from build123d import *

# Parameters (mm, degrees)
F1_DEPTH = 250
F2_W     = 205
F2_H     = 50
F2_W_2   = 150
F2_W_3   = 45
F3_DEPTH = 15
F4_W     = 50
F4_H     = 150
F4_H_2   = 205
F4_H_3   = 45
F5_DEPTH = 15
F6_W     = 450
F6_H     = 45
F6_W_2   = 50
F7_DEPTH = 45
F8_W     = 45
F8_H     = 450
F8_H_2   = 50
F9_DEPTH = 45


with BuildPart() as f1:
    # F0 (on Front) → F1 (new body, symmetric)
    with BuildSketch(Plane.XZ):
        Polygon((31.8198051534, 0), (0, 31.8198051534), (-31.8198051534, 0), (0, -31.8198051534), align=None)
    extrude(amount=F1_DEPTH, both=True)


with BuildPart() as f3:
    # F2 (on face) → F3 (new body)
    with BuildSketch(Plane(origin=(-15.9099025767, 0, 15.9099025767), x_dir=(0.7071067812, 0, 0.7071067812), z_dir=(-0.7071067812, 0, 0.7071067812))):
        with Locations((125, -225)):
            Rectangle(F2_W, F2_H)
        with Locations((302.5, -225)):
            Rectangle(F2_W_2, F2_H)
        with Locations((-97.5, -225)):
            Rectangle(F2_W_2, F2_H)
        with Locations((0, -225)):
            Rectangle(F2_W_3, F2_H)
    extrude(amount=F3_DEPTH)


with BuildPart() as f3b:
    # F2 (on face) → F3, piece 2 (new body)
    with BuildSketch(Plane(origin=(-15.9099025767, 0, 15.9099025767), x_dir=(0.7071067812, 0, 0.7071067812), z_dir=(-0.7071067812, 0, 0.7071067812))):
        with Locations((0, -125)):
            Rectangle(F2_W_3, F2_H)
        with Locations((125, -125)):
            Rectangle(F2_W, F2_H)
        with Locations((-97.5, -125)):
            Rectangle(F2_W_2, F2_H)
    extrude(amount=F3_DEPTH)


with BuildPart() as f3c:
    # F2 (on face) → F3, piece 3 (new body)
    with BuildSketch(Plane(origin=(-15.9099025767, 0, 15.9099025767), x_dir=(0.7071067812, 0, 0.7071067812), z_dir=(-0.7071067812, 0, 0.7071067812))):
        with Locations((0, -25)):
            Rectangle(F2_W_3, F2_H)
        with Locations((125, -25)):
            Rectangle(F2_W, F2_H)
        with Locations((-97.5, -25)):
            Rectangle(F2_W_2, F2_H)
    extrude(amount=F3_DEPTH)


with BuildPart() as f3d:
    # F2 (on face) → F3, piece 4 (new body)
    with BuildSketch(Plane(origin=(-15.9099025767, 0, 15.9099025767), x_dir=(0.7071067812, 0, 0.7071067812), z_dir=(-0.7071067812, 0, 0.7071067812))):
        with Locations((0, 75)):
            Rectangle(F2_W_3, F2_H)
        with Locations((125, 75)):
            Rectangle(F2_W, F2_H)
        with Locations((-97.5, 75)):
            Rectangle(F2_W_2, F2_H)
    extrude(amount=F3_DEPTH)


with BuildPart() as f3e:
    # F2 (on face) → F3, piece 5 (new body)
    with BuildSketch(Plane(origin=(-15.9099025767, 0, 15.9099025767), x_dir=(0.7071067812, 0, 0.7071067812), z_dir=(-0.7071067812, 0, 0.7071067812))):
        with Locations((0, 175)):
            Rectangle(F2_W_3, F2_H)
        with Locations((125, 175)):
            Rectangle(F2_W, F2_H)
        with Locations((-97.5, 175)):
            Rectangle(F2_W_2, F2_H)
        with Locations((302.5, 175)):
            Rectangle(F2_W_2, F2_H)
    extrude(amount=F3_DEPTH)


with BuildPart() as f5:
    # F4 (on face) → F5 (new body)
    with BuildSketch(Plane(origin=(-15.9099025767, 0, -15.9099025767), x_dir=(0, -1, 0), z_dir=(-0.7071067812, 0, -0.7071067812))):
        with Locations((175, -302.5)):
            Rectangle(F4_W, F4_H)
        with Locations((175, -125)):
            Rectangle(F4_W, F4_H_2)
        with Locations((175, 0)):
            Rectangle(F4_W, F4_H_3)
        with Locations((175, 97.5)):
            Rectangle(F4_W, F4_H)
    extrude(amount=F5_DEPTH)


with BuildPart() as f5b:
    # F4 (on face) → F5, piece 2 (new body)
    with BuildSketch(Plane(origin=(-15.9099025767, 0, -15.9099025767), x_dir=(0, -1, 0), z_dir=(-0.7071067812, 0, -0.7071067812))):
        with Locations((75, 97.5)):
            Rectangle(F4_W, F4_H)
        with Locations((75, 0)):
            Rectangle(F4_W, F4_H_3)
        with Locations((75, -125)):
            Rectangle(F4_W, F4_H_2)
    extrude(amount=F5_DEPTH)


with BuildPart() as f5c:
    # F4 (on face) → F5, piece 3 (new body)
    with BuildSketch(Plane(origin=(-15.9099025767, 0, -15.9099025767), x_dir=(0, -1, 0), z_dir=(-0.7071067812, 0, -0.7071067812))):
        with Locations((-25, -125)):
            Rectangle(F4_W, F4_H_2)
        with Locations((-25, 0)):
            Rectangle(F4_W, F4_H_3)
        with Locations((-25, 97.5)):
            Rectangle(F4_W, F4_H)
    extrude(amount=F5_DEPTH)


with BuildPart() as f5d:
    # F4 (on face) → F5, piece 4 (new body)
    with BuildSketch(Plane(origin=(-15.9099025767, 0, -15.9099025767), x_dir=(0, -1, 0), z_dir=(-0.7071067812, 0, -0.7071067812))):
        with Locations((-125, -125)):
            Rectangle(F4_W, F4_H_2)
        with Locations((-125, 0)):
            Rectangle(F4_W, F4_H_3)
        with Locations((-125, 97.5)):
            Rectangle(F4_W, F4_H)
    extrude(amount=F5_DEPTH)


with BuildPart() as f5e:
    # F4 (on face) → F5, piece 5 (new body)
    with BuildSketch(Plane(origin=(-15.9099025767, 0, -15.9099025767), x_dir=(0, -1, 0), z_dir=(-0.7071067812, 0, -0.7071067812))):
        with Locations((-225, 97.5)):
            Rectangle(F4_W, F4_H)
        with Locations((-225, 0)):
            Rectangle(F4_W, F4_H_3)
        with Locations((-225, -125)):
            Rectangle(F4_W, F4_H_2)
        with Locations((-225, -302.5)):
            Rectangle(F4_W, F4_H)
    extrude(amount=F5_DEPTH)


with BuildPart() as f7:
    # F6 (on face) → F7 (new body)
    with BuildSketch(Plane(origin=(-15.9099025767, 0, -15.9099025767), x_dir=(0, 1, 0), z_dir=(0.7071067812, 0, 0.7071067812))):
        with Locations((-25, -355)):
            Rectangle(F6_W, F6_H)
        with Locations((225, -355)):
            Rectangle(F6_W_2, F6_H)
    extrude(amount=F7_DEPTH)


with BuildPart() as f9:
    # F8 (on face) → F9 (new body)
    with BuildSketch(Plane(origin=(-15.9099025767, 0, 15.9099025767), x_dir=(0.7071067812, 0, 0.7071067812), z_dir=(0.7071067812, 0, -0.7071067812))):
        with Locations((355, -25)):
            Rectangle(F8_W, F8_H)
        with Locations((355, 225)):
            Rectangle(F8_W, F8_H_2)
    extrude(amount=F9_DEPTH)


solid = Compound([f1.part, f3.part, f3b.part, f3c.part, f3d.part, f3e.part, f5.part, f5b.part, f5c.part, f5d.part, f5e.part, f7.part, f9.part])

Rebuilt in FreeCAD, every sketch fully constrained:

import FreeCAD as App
import Part
import Sketcher
from FreeCAD import Vector
Q = App.Units.Quantity


def add_polygon(sketch, points):
    """Adds a closed chain of lines whose ends are joined by coincident constraints."""
    first, n = sketch.GeometryCount, len(points)
    for a, b in zip(points, points[1:] + points[:1]):
        sketch.addGeometry(Part.LineSegment(App.Vector(*a, 0), App.Vector(*b, 0)), False)
    for i in range(n):
        sketch.addConstraint(Sketcher.Constraint("Coincident", first + i, 2, first + (i + 1) % n, 1))

doc = App.newDocument("Part")
params = doc.addObject("Spreadsheet::Sheet", "Params")
for row, (alias, value) in enumerate([
    ("sketch1_length", "45 mm"),
    ("pad1_length", "500 mm"),
    ("sketch2_width", "550 mm"),
    ("sketch2_height", "50 mm"),
    ("pad2_length", "15 mm"),
    ("sketch3_width", "400 mm"),
    ("sketch3_height", "50 mm"),
    ("pad3_length", "15 mm"),
    ("sketch4_width", "400 mm"),
    ("sketch4_height", "50 mm"),
    ("pad4_length", "15 mm"),
    ("sketch5_width", "400 mm"),
    ("sketch5_height", "50 mm"),
    ("pad5_length", "15 mm"),
    ("sketch6_width", "550 mm"),
    ("sketch6_height", "50 mm"),
    ("pad6_length", "15 mm"),
    ("sketch7_width", "50 mm"),
    ("sketch7_height", "550 mm"),
    ("pad7_length", "15 mm"),
    ("sketch8_width", "50 mm"),
    ("sketch8_height", "400 mm"),
    ("pad8_length", "15 mm"),
    ("sketch9_width", "50 mm"),
    ("sketch9_height", "400 mm"),
    ("pad9_length", "15 mm"),
    ("sketch10_width", "50 mm"),
    ("sketch10_height", "400 mm"),
    ("pad10_length", "15 mm"),
    ("sketch11_width", "50 mm"),
    ("sketch11_height", "550 mm"),
    ("pad11_length", "15 mm"),
    ("sketch12_width", "500 mm"),
    ("sketch12_height", "45 mm"),
    ("pad12_length", "45 mm"),
    ("sketch13_width", "45 mm"),
    ("sketch13_height", "499.999999 mm"),
    ("pad13_length", "45 mm"),
], start=1):
    params.set(f"A{row}", alias)
    params.set(f"B{row}", "=" + value)
    params.setAlias(f"B{row}", alias)

body = doc.addObject("PartDesign::Body", "Body")

sketch1 = doc.addObject("Sketcher::SketchObject", "Sketch")
body.addObject(sketch1)
sketch1.AttachmentSupport = (doc.XZ_Plane, [""])
sketch1.MapMode = "FlatFace"
add_polygon(sketch1, [(32, 0), (0, 32), (-32, 0), (0, -32)])
sketch1.addConstraint(Sketcher.Constraint("Symmetric", 0, 2, 2, 2, -1, 1))
sketch1.addConstraint(Sketcher.Constraint("Symmetric", 1, 2, 3, 2, -1, 1))
sketch1.addConstraint(Sketcher.Constraint("PointOnObject", 0, 2, -2))
sketch1.addConstraint(Sketcher.Constraint("PointOnObject", 1, 2, -1))
sketch1.addConstraint(Sketcher.Constraint("Perpendicular", 0, 1))
sketch1.addConstraint(Sketcher.Constraint("Distance", 0, Q("45 mm")))
sketch1.setExpression("Constraints[9]", "Params.sketch1_length")
pad1 = doc.addObject("PartDesign::Pad", "Pad")
body.addObject(pad1)
pad1.Profile = sketch1
pad1.setExpression("Length", "Params.pad1_length")
pad1.Midplane = True
body2 = doc.addObject("PartDesign::Body", "Body001")

sketch2 = doc.addObject("Sketcher::SketchObject", "Sketch001")
body2.addObject(sketch2)
sketch2.Placement = App.Placement(Vector(-15.909903, 0, 15.909903), App.Rotation(Vector(0.707106781, 0, 0.707106781), Vector(0, 0.999999999, 0), Vector(-0.707106781, 0, 0.707106781), "ZXY"))
add_polygon(sketch2, [(377, -250), (377, -200), (-172, -200), (-172, -250)])
sketch2.addConstraint(Sketcher.Constraint("Vertical", 0))
sketch2.addConstraint(Sketcher.Constraint("Horizontal", 1))
sketch2.addConstraint(Sketcher.Constraint("Vertical", 2))
sketch2.addConstraint(Sketcher.Constraint("Horizontal", 3))
sketch2.addConstraint(Sketcher.Constraint("DistanceX", 1, 2, 1, 1, Q("550 mm")))
sketch2.addConstraint(Sketcher.Constraint("DistanceY", 0, 1, 0, 2, Q("50 mm")))
sketch2.addConstraint(Sketcher.Constraint("DistanceY", 0, 2, -1, 1, Q("200 mm")))
sketch2.addConstraint(Sketcher.Constraint("DistanceX", -1, 1, 0, 2, Q("377.5 mm")))
sketch2.setExpression("Constraints[8]", "Params.sketch2_width")
sketch2.setExpression("Constraints[9]", "Params.sketch2_height")
pad2 = doc.addObject("PartDesign::Pad", "Pad001")
body2.addObject(pad2)
pad2.Profile = sketch2
pad2.setExpression("Length", "Params.pad2_length")
body3 = doc.addObject("PartDesign::Body", "Body002")

sketch3 = doc.addObject("Sketcher::SketchObject", "Sketch002")
body3.addObject(sketch3)
sketch3.Placement = App.Placement(Vector(-15.909903, 0, 15.909903), App.Rotation(Vector(0.707106781, 0, 0.707106781), Vector(0, 0.999999999, 0), Vector(-0.707106781, 0, 0.707106781), "ZXY"))
add_polygon(sketch3, [(227, -150), (227, -100), (-172, -100), (-172, -150)])
sketch3.addConstraint(Sketcher.Constraint("Vertical", 0))
sketch3.addConstraint(Sketcher.Constraint("Horizontal", 1))
sketch3.addConstraint(Sketcher.Constraint("Vertical", 2))
sketch3.addConstraint(Sketcher.Constraint("Horizontal", 3))
sketch3.addConstraint(Sketcher.Constraint("DistanceX", 1, 2, 1, 1, Q("400 mm")))
sketch3.addConstraint(Sketcher.Constraint("DistanceY", 0, 1, 0, 2, Q("50 mm")))
sketch3.addConstraint(Sketcher.Constraint("DistanceY", 0, 2, -1, 1, Q("100 mm")))
sketch3.addConstraint(Sketcher.Constraint("DistanceX", -1, 1, 0, 2, Q("227.5 mm")))
sketch3.setExpression("Constraints[8]", "Params.sketch3_width")
sketch3.setExpression("Constraints[9]", "Params.sketch3_height")
pad3 = doc.addObject("PartDesign::Pad", "Pad002")
body3.addObject(pad3)
pad3.Profile = sketch3
pad3.setExpression("Length", "Params.pad3_length")
body4 = doc.addObject("PartDesign::Body", "Body003")

sketch4 = doc.addObject("Sketcher::SketchObject", "Sketch003")
body4.addObject(sketch4)
sketch4.Placement = App.Placement(Vector(-15.909903, 0, 15.909903), App.Rotation(Vector(0.707106781, 0, 0.707106781), Vector(0, 0.999999999, 0), Vector(-0.707106781, 0, 0.707106781), "ZXY"))
add_polygon(sketch4, [(227, -50), (227, 0), (-172, 0), (-172, -50)])
sketch4.addConstraint(Sketcher.Constraint("Vertical", 0))
sketch4.addConstraint(Sketcher.Constraint("Horizontal", 1))
sketch4.addConstraint(Sketcher.Constraint("Vertical", 2))
sketch4.addConstraint(Sketcher.Constraint("Horizontal", 3))
sketch4.addConstraint(Sketcher.Constraint("PointOnObject", 0, 2, -1))
sketch4.addConstraint(Sketcher.Constraint("DistanceX", 1, 2, 1, 1, Q("400 mm")))
sketch4.addConstraint(Sketcher.Constraint("DistanceY", 0, 1, 0, 2, Q("50 mm")))
sketch4.addConstraint(Sketcher.Constraint("DistanceX", -1, 1, 0, 2, Q("227.5 mm")))
sketch4.setExpression("Constraints[9]", "Params.sketch4_width")
sketch4.setExpression("Constraints[10]", "Params.sketch4_height")
pad4 = doc.addObject("PartDesign::Pad", "Pad003")
body4.addObject(pad4)
pad4.Profile = sketch4
pad4.setExpression("Length", "Params.pad4_length")
body5 = doc.addObject("PartDesign::Body", "Body004")

sketch5 = doc.addObject("Sketcher::SketchObject", "Sketch004")
body5.addObject(sketch5)
sketch5.Placement = App.Placement(Vector(-15.909903, 0, 15.909903), App.Rotation(Vector(0.707106781, 0, 0.707106781), Vector(0, 0.999999999, 0), Vector(-0.707106781, 0, 0.707106781), "ZXY"))
add_polygon(sketch5, [(227, 50), (227, 100), (-172, 100), (-172, 50)])
sketch5.addConstraint(Sketcher.Constraint("Vertical", 0))
sketch5.addConstraint(Sketcher.Constraint("Horizontal", 1))
sketch5.addConstraint(Sketcher.Constraint("Vertical", 2))
sketch5.addConstraint(Sketcher.Constraint("Horizontal", 3))
sketch5.addConstraint(Sketcher.Constraint("DistanceX", 1, 2, 1, 1, Q("400 mm")))
sketch5.addConstraint(Sketcher.Constraint("DistanceY", 0, 1, 0, 2, Q("50 mm")))
sketch5.addConstraint(Sketcher.Constraint("DistanceY", -1, 1, 0, 2, Q("100 mm")))
sketch5.addConstraint(Sketcher.Constraint("DistanceX", -1, 1, 0, 2, Q("227.5 mm")))
sketch5.setExpression("Constraints[8]", "Params.sketch5_width")
sketch5.setExpression("Constraints[9]", "Params.sketch5_height")
pad5 = doc.addObject("PartDesign::Pad", "Pad004")
body5.addObject(pad5)
pad5.Profile = sketch5
pad5.setExpression("Length", "Params.pad5_length")
body6 = doc.addObject("PartDesign::Body", "Body005")

sketch6 = doc.addObject("Sketcher::SketchObject", "Sketch005")
body6.addObject(sketch6)
sketch6.Placement = App.Placement(Vector(-15.909903, 0, 15.909903), App.Rotation(Vector(0.707106781, 0, 0.707106781), Vector(0, 0.999999999, 0), Vector(-0.707106781, 0, 0.707106781), "ZXY"))
add_polygon(sketch6, [(-172, 200), (-172, 150), (377, 150), (377, 200)])
sketch6.addConstraint(Sketcher.Constraint("Vertical", 0))
sketch6.addConstraint(Sketcher.Constraint("Horizontal", 1))
sketch6.addConstraint(Sketcher.Constraint("Vertical", 2))
sketch6.addConstraint(Sketcher.Constraint("Horizontal", 3))
sketch6.addConstraint(Sketcher.Constraint("DistanceX", 1, 1, 1, 2, Q("550 mm")))
sketch6.addConstraint(Sketcher.Constraint("DistanceY", 0, 2, 0, 1, Q("50 mm")))
sketch6.addConstraint(Sketcher.Constraint("DistanceY", -1, 1, 0, 2, Q("150 mm")))
sketch6.addConstraint(Sketcher.Constraint("DistanceX", 0, 2, -1, 1, Q("172.5 mm")))
sketch6.setExpression("Constraints[8]", "Params.sketch6_width")
sketch6.setExpression("Constraints[9]", "Params.sketch6_height")
pad6 = doc.addObject("PartDesign::Pad", "Pad005")
body6.addObject(pad6)
pad6.Profile = sketch6
pad6.setExpression("Length", "Params.pad6_length")
body7 = doc.addObject("PartDesign::Body", "Body006")

sketch7 = doc.addObject("Sketcher::SketchObject", "Sketch006")
body7.addObject(sketch7)
sketch7.Placement = App.Placement(Vector(-15.909903, 0, -15.909903), App.Rotation(Vector(0, -1, 0), Vector(-0.707106781, 0, 0.707106781), Vector(-0.707106781, 0, -0.707106781), "ZXY"))
add_polygon(sketch7, [(150, -377), (200, -377), (200, 172), (150, 172)])
sketch7.addConstraint(Sketcher.Constraint("Horizontal", 0))
sketch7.addConstraint(Sketcher.Constraint("Vertical", 1))
sketch7.addConstraint(Sketcher.Constraint("Horizontal", 2))
sketch7.addConstraint(Sketcher.Constraint("Vertical", 3))
sketch7.addConstraint(Sketcher.Constraint("DistanceX", 0, 1, 0, 2, Q("50 mm")))
sketch7.addConstraint(Sketcher.Constraint("DistanceY", 1, 1, 1, 2, Q("550 mm")))
sketch7.addConstraint(Sketcher.Constraint("DistanceX", -1, 1, 0, 2, Q("200 mm")))
sketch7.addConstraint(Sketcher.Constraint("DistanceY", 0, 2, -1, 1, Q("377.5 mm")))
sketch7.setExpression("Constraints[8]", "Params.sketch7_width")
sketch7.setExpression("Constraints[9]", "Params.sketch7_height")
pad7 = doc.addObject("PartDesign::Pad", "Pad006")
body7.addObject(pad7)
pad7.Profile = sketch7
pad7.setExpression("Length", "Params.pad7_length")
body8 = doc.addObject("PartDesign::Body", "Body007")

sketch8 = doc.addObject("Sketcher::SketchObject", "Sketch007")
body8.addObject(sketch8)
sketch8.Placement = App.Placement(Vector(-15.909903, 0, -15.909903), App.Rotation(Vector(0, -1, 0), Vector(-0.707106781, 0, 0.707106781), Vector(-0.707106781, 0, -0.707106781), "ZXY"))
add_polygon(sketch8, [(50, 172), (50, -227), (100, -227), (100, 172)])
sketch8.addConstraint(Sketcher.Constraint("Vertical", 0))
sketch8.addConstraint(Sketcher.Constraint("Horizontal", 1))
sketch8.addConstraint(Sketcher.Constraint("Vertical", 2))
sketch8.addConstraint(Sketcher.Constraint("Horizontal", 3))
sketch8.addConstraint(Sketcher.Constraint("DistanceX", 1, 1, 1, 2, Q("50 mm")))
sketch8.addConstraint(Sketcher.Constraint("DistanceY", 0, 2, 0, 1, Q("400 mm")))
sketch8.addConstraint(Sketcher.Constraint("DistanceX", -1, 1, 0, 2, Q("50 mm")))
sketch8.addConstraint(Sketcher.Constraint("DistanceY", 0, 2, -1, 1, Q("227.5 mm")))
sketch8.setExpression("Constraints[8]", "Params.sketch8_width")
sketch8.setExpression("Constraints[9]", "Params.sketch8_height")
pad8 = doc.addObject("PartDesign::Pad", "Pad007")
body8.addObject(pad8)
pad8.Profile = sketch8
pad8.setExpression("Length", "Params.pad8_length")
body9 = doc.addObject("PartDesign::Body", "Body008")

sketch9 = doc.addObject("Sketcher::SketchObject", "Sketch008")
body9.addObject(sketch9)
sketch9.Placement = App.Placement(Vector(-15.909903, 0, -15.909903), App.Rotation(Vector(0, -1, 0), Vector(-0.707106781, 0, 0.707106781), Vector(-0.707106781, 0, -0.707106781), "ZXY"))
add_polygon(sketch9, [(-50, -227), (0, -227), (0, 172), (-50, 172)])
sketch9.addConstraint(Sketcher.Constraint("Horizontal", 0))
sketch9.addConstraint(Sketcher.Constraint("Vertical", 1))
sketch9.addConstraint(Sketcher.Constraint("Horizontal", 2))
sketch9.addConstraint(Sketcher.Constraint("Vertical", 3))
sketch9.addConstraint(Sketcher.Constraint("PointOnObject", 0, 2, -2))
sketch9.addConstraint(Sketcher.Constraint("DistanceX", 0, 1, 0, 2, Q("50 mm")))
sketch9.addConstraint(Sketcher.Constraint("DistanceY", 1, 1, 1, 2, Q("400 mm")))
sketch9.addConstraint(Sketcher.Constraint("DistanceY", 0, 2, -1, 1, Q("227.5 mm")))
sketch9.setExpression("Constraints[9]", "Params.sketch9_width")
sketch9.setExpression("Constraints[10]", "Params.sketch9_height")
pad9 = doc.addObject("PartDesign::Pad", "Pad008")
body9.addObject(pad9)
pad9.Profile = sketch9
pad9.setExpression("Length", "Params.pad9_length")
body10 = doc.addObject("PartDesign::Body", "Body009")

sketch10 = doc.addObject("Sketcher::SketchObject", "Sketch009")
body10.addObject(sketch10)
sketch10.Placement = App.Placement(Vector(-15.909903, 0, -15.909903), App.Rotation(Vector(0, -1, 0), Vector(-0.707106781, 0, 0.707106781), Vector(-0.707106781, 0, -0.707106781), "ZXY"))
add_polygon(sketch10, [(-150, -227), (-100, -227), (-100, 172), (-150, 172)])
sketch10.addConstraint(Sketcher.Constraint("Horizontal", 0))
sketch10.addConstraint(Sketcher.Constraint("Vertical", 1))
sketch10.addConstraint(Sketcher.Constraint("Horizontal", 2))
sketch10.addConstraint(Sketcher.Constraint("Vertical", 3))
sketch10.addConstraint(Sketcher.Constraint("DistanceX", 0, 1, 0, 2, Q("50 mm")))
sketch10.addConstraint(Sketcher.Constraint("DistanceY", 1, 1, 1, 2, Q("400 mm")))
sketch10.addConstraint(Sketcher.Constraint("DistanceX", 0, 2, -1, 1, Q("100 mm")))
sketch10.addConstraint(Sketcher.Constraint("DistanceY", 0, 2, -1, 1, Q("227.5 mm")))
sketch10.setExpression("Constraints[8]", "Params.sketch10_width")
sketch10.setExpression("Constraints[9]", "Params.sketch10_height")
pad10 = doc.addObject("PartDesign::Pad", "Pad009")
body10.addObject(pad10)
pad10.Profile = sketch10
pad10.setExpression("Length", "Params.pad10_length")
body11 = doc.addObject("PartDesign::Body", "Body010")

sketch11 = doc.addObject("Sketcher::SketchObject", "Sketch010")
body11.addObject(sketch11)
sketch11.Placement = App.Placement(Vector(-15.909903, 0, -15.909903), App.Rotation(Vector(0, -1, 0), Vector(-0.707106781, 0, 0.707106781), Vector(-0.707106781, 0, -0.707106781), "ZXY"))
add_polygon(sketch11, [(-250, 172), (-250, -377), (-200, -377), (-200, 172)])
sketch11.addConstraint(Sketcher.Constraint("Vertical", 0))
sketch11.addConstraint(Sketcher.Constraint("Horizontal", 1))
sketch11.addConstraint(Sketcher.Constraint("Vertical", 2))
sketch11.addConstraint(Sketcher.Constraint("Horizontal", 3))
sketch11.addConstraint(Sketcher.Constraint("DistanceX", 1, 1, 1, 2, Q("50 mm")))
sketch11.addConstraint(Sketcher.Constraint("DistanceY", 0, 2, 0, 1, Q("550 mm")))
sketch11.addConstraint(Sketcher.Constraint("DistanceX", 0, 2, -1, 1, Q("250 mm")))
sketch11.addConstraint(Sketcher.Constraint("DistanceY", 0, 2, -1, 1, Q("377.5 mm")))
sketch11.setExpression("Constraints[8]", "Params.sketch11_width")
sketch11.setExpression("Constraints[9]", "Params.sketch11_height")
pad11 = doc.addObject("PartDesign::Pad", "Pad010")
body11.addObject(pad11)
pad11.Profile = sketch11
pad11.setExpression("Length", "Params.pad11_length")
body12 = doc.addObject("PartDesign::Body", "Body011")

sketch12 = doc.addObject("Sketcher::SketchObject", "Sketch011")
body12.addObject(sketch12)
sketch12.Placement = App.Placement(Vector(-15.909903, 0, -15.909903), App.Rotation(Vector(0, 1, 0), Vector(-0.707106781, 0, 0.707106781), Vector(0.707106781, 0, 0.707106781), "ZXY"))
add_polygon(sketch12, [(-250, -332), (-250, -377), (250, -377), (250, -332)])
sketch12.addConstraint(Sketcher.Constraint("Vertical", 0))
sketch12.addConstraint(Sketcher.Constraint("Horizontal", 1))
sketch12.addConstraint(Sketcher.Constraint("Vertical", 2))
sketch12.addConstraint(Sketcher.Constraint("Horizontal", 3))
sketch12.addConstraint(Sketcher.Constraint("DistanceX", 1, 1, 1, 2, Q("500 mm")))
sketch12.addConstraint(Sketcher.Constraint("DistanceY", 0, 2, 0, 1, Q("45 mm")))
sketch12.addConstraint(Sketcher.Constraint("DistanceX", 0, 2, -1, 1, Q("250 mm")))
sketch12.addConstraint(Sketcher.Constraint("DistanceY", 0, 2, -1, 1, Q("377.5 mm")))
sketch12.setExpression("Constraints[8]", "Params.sketch12_width")
sketch12.setExpression("Constraints[9]", "Params.sketch12_height")
pad12 = doc.addObject("PartDesign::Pad", "Pad011")
body12.addObject(pad12)
pad12.Profile = sketch12
pad12.setExpression("Length", "Params.pad12_length")
body13 = doc.addObject("PartDesign::Body", "Body012")

sketch13 = doc.addObject("Sketcher::SketchObject", "Sketch012")
body13.addObject(sketch13)
sketch13.Placement = App.Placement(Vector(-15.909903, 0, 15.909903), App.Rotation(Vector(0.707106781, 0, 0.707106781), Vector(0, -0.999999999, 0), Vector(0.707106781, 0, -0.707106781), "ZXY"))
add_polygon(sketch13, [(332, -250), (377, -250), (377, 250), (332, 250)])
sketch13.addConstraint(Sketcher.Constraint("Horizontal", 0))
sketch13.addConstraint(Sketcher.Constraint("Vertical", 1))
sketch13.addConstraint(Sketcher.Constraint("Horizontal", 2))
sketch13.addConstraint(Sketcher.Constraint("Vertical", 3))
sketch13.addConstraint(Sketcher.Constraint("DistanceX", 0, 1, 0, 2, Q("45 mm")))
sketch13.addConstraint(Sketcher.Constraint("DistanceY", 1, 1, 1, 2, Q("499.999999 mm")))
sketch13.addConstraint(Sketcher.Constraint("DistanceY", 0, 2, -1, 1, Q("250 mm")))
sketch13.addConstraint(Sketcher.Constraint("DistanceX", -1, 1, 0, 2, Q("377.5 mm")))
sketch13.setExpression("Constraints[8]", "Params.sketch13_width")
sketch13.setExpression("Constraints[9]", "Params.sketch13_height")
pad13 = doc.addObject("PartDesign::Pad", "Pad012")
body13.addObject(pad13)
pad13.Profile = sketch13
pad13.setExpression("Length", "Params.pad13_length")

doc.recompute()
